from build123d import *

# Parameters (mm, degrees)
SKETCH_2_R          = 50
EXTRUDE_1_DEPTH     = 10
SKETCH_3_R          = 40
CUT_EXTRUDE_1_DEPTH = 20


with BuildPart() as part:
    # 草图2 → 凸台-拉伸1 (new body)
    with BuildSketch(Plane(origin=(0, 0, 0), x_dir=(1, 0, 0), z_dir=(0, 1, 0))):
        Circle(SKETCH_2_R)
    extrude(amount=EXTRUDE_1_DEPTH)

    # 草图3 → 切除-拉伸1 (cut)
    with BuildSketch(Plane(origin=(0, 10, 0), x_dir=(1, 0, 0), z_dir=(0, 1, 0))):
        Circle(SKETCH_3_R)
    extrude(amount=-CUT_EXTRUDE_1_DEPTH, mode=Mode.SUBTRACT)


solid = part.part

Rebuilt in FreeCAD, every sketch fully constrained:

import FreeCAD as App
import Part
import Sketcher

doc = App.newDocument("Part")
params = doc.addObject("Spreadsheet::Sheet", "Params")
for row, (alias, value) in enumerate([
    ("sketch1_diameter", "100 mm"),
    ("pad1_length", "10 mm"),
    ("sketch2_diameter", "80 mm"),
    ("pocket1_length", "20 mm"),
], start=1):
    params.set(f"A{row}", alias)
    params.set(f"B{row}", "=" + value)
    params.setAlias(f"B{row}", alias)

body = doc.addObject("PartDesign::Body", "Body")

# Sketch on XZ plane
sketch1 = body.newObject("Sketcher::SketchObject", "Sketch")
sketch1.AttachmentSupport = (doc.getObject("XZ_Plane"), [""])
sketch1.MapMode = "FlatFace"
sketch1.addGeometry(Part.Circle(App.Vector(0, 0, 0), App.Vector(0, 0, 1), 50), False)
sketch1.addConstraint([
    Sketcher.Constraint("Coincident", 0, 3, -1, 1),
    Sketcher.Constraint("Diameter", 0, 100.0),
])
sketch1.setExpression("Constraints[1]", "Params.sketch1_diameter")
pad1 = body.newObject("PartDesign::Pad", "Pad")
pad1.Profile = sketch1
pad1.setExpression("Length", "Params.pad1_length")
pad1.Reversed = True

# Sketch on XZ plane
sketch2 = body.newObject("Sketcher::SketchObject", "Sketch001")
sketch2.AttachmentSupport = (doc.getObject("XZ_Plane"), [""])
sketch2.MapMode = "FlatFace"
sketch2.AttachmentOffset = App.Placement(App.Vector(0, 0, -10), App.Rotation())
sketch2.addGeometry(Part.Circle(App.Vector(0, 0, 0), App.Vector(0, 0, 1), 40), False)
sketch2.addConstraint([
    Sketcher.Constraint("Coincident", 0, 3, -1, 1),
    Sketcher.Constraint("Diameter", 0, 80.0),
])
sketch2.setExpression("Constraints[1]", "Params.sketch2_diameter")
pocket1 = body.newObject("PartDesign::Pocket", "Pocket")
pocket1.Profile = sketch2
pocket1.setExpression("Length", "Params.pocket1_length")
pocket1.Reversed = True

doc.recompute()
